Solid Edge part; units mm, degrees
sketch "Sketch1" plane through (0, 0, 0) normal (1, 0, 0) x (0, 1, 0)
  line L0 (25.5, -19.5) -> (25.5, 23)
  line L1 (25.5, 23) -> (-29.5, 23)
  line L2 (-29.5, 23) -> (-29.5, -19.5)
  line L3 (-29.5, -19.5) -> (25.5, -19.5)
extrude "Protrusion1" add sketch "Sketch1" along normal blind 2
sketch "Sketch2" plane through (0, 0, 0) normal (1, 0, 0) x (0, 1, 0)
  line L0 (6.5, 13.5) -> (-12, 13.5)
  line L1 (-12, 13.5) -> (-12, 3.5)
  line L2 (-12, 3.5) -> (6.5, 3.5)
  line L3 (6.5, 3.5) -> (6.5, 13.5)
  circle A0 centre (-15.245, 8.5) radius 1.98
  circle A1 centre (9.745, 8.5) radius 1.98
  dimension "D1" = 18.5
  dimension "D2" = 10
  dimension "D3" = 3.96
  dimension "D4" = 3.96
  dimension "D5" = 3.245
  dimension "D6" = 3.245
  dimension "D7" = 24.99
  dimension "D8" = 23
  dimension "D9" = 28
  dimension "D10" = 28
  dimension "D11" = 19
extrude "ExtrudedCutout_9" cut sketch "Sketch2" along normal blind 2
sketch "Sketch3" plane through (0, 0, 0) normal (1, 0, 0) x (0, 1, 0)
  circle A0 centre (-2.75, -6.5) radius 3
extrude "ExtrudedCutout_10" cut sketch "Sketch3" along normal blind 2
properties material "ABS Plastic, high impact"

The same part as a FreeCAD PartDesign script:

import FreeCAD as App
import Part
import Sketcher

doc = App.newDocument("Part")
params = doc.addObject("Spreadsheet::Sheet", "Params")
for row, (alias, value) in enumerate([
    ("sketch1_width", "55 mm"),
    ("sketch1_height", "42.5 mm"),
    ("pad1_length", "2 mm"),
    ("sketch2_diameter", "3.96 mm"),
    ("sketch2_height", "10 mm"),
    ("sketch2_width", "18.5 mm"),
    ("pocket1_length", "2 mm"),
    ("sketch3_diameter", "6 mm"),
    ("pocket2_length", "2 mm"),
], start=1):
    params.set(f"A{row}", alias)
    params.set(f"B{row}", "=" + value)
    params.setAlias(f"B{row}", alias)

body = doc.addObject("PartDesign::Body", "Body")

# Sketch on YZ plane
sketch1 = body.newObject("Sketcher::SketchObject", "Sketch")
sketch1.AttachmentSupport = (doc.getObject("YZ_Plane"), [""])
sketch1.MapMode = "FlatFace"
sketch1.addGeometry([
    Part.LineSegment(App.Vector(-30, -20, 0), App.Vector(26, -20, 0)),
    Part.LineSegment(App.Vector(26, -20, 0), App.Vector(26, 23, 0)),
    Part.LineSegment(App.Vector(26, 23, 0), App.Vector(-30, 23, 0)),
    Part.LineSegment(App.Vector(-30, 23, 0), App.Vector(-30, -20, 0)),
], False)
sketch1.addConstraint([
    Sketcher.Constraint("Coincident", 0, 2, 1, 1),
    Sketcher.Constraint("Coincident", 1, 2, 2, 1),
    Sketcher.Constraint("Coincident", 2, 2, 3, 1),
    Sketcher.Constraint("Coincident", 3, 2, 0, 1),
    Sketcher.Constraint("Horizontal", 0),
    Sketcher.Constraint("Vertical", 1),
    Sketcher.Constraint("Horizontal", 2),
    Sketcher.Constraint("Vertical", 3),
    Sketcher.Constraint("DistanceX", 0, 1, 0, 2, 55.0),
    Sketcher.Constraint("DistanceY", 1, 1, 1, 2, 42.5),
    Sketcher.Constraint("DistanceY", -1, 1, 1, 2, 23.0),
    Sketcher.Constraint("DistanceX", -1, 1, 0, 2, 25.5),
])
sketch1.setExpression("Constraints[8]", "Params.sketch1_width")
sketch1.setExpression("Constraints[9]", "Params.sketch1_height")
pad1 = body.newObject("PartDesign::Pad", "Pad")
pad1.Profile = sketch1
pad1.setExpression("Length", "Params.pad1_length")

# Sketch on YZ plane
sketch2 = body.newObject("Sketcher::SketchObject", "Sketch001")
sketch2.AttachmentSupport = (doc.getObject("YZ_Plane"), [""])
sketch2.MapMode = "FlatFace"
sketch2.addGeometry([
    Part.LineSegment(App.Vector(6.5, 3.5, 0), App.Vector(6.5, 13.5, 0)),  # 0
    Part.LineSegment(App.Vector(6.5, 13.5, 0), App.Vector(-12, 13.5, 0)),  # 1
    Part.LineSegment(App.Vector(-12, 13.5, 0), App.Vector(-12, 3.5, 0)),  # 2
    Part.LineSegment(App.Vector(-12, 3.5, 0), App.Vector(6.5, 3.5, 0)),  # 3
    Part.Circle(App.Vector(-15.2, 8.5, 0), App.Vector(0, 0, 1), 2),  # 4
    Part.Circle(App.Vector(9.7, 8.5, 0), App.Vector(0, 0, 1), 2),  # 5
], False)
sketch2.addConstraint([
    Sketcher.Constraint("Coincident", 0, 2, 1, 1),
    Sketcher.Constraint("Coincident", 1, 2, 2, 1),
    Sketcher.Constraint("Coincident", 2, 2, 3, 1),
    Sketcher.Constraint("Coincident", 3, 2, 0, 1),
    Sketcher.Constraint("Vertical", 0),
    Sketcher.Constraint("Horizontal", 1),
    Sketcher.Constraint("Vertical", 2),
    Sketcher.Constraint("Horizontal", 3),
    Sketcher.Constraint("Equal", 4, 5),
    Sketcher.Constraint("Horizontal", 4, 3, 5, 3),
    Sketcher.Constraint("Diameter", 4, 3.96),
    Sketcher.Constraint("DistanceY", 0, 1, 0, 2, 10.0),
    Sketcher.Constraint("DistanceX", 1, 2, 1, 1, 18.5),
    Sketcher.Constraint("DistanceX", 1, 2, -1, 1, 12.0),
    Sketcher.Constraint("DistanceY", 5, 3, 0, 2, 5.0),
    Sketcher.Constraint("DistanceY", -1, 1, 4, 3, 8.5),
    Sketcher.Constraint("DistanceX", 4, 3, 5, 3, 24.99),
    Sketcher.Constraint("DistanceX", 4, 3, -1, 1, 15.245),
])
sketch2.setExpression("Constraints[10]", "Params.sketch2_diameter")
sketch2.setExpression("Constraints[11]", "Params.sketch2_height")
sketch2.setExpression("Constraints[12]", "Params.sketch2_width")
pocket1 = body.newObject("PartDesign::Pocket", "Pocket")
pocket1.Profile = sketch2
pocket1.setExpression("Length", "Params.pocket1_length")
pocket1.Reversed = True

# Sketch on YZ plane
sketch3 = body.newObject("Sketcher::SketchObject", "Sketch002")
sketch3.AttachmentSupport = (doc.getObject("YZ_Plane"), [""])
sketch3.MapMode = "FlatFace"
sketch3.addGeometry(Part.Circle(App.Vector(-2.8, -6.5, 0), App.Vector(0, 0, 1), 3), False)
sketch3.addConstraint([
    Sketcher.Constraint("Diameter", 0, 6.0),
    Sketcher.Constraint("DistanceY", 0, 3, -1, 1, 6.5),
    Sketcher.Constraint("DistanceX", 0, 3, -1, 1, 2.75),
])
sketch3.setExpression("Constraints[0]", "Params.sketch3_diameter")
pocket2 = body.newObject("PartDesign::Pocket", "Pocket001")
pocket2.Profile = sketch3
pocket2.setExpression("Length", "Params.pocket2_length")
pocket2.Reversed = True

doc.recompute()
